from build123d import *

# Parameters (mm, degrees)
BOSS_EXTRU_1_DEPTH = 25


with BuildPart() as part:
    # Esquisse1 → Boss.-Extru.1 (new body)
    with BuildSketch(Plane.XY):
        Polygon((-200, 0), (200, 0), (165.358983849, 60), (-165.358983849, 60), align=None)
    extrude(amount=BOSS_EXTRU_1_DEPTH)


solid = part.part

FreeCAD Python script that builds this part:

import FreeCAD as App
import Part
import Sketcher
Q = App.Units.Quantity


def add_polygon(sketch, points):
    """Adds a closed chain of lines whose ends are joined by coincident constraints."""
    first, n = sketch.GeometryCount, len(points)
    for a, b in zip(points, points[1:] + points[:1]):
        sketch.addGeometry(Part.LineSegment(App.Vector(*a, 0), App.Vector(*b, 0)), False)
    for i in range(n):
        sketch.addConstraint(Sketcher.Constraint("Coincident", first + i, 2, first + (i + 1) % n, 1))

doc = App.newDocument("Part")
params = doc.addObject("Spreadsheet::Sheet", "Params")
for row, (alias, value) in enumerate([
    ("sketch1_width", "400 mm"),
    ("pad1_length", "25 mm"),
], start=1):
    params.set(f"A{row}", alias)
    params.set(f"B{row}", "=" + value)
    params.setAlias(f"B{row}", alias)

body = doc.addObject("PartDesign::Body", "Body")

sketch1 = doc.addObject("Sketcher::SketchObject", "Sketch")
body.addObject(sketch1)
sketch1.AttachmentSupport = (doc.XY_Plane, [""])
sketch1.MapMode = "FlatFace"
add_polygon(sketch1, [(-200, 0), (200, 0), (165, 60), (-165, 60)])
sketch1.addConstraint([
    Sketcher.Constraint("Horizontal", 0),
    Sketcher.Constraint("Horizontal", 2),
    Sketcher.Constraint("Symmetric", 0, 2, 3, 2, -1, 1),
    Sketcher.Constraint("Equal", 1, 3),
    Sketcher.Constraint("DistanceX", 0, 1, 0, 2, 400.0),
    Sketcher.Constraint("Angle", 1, Q("120 deg")),
    Sketcher.Constraint("DistanceY", -1, 1, 1, 2, 60.0),
])
sketch1.setExpression("Constraints[8]", "Params.sketch1_width")
pad1 = doc.addObject("PartDesign::Pad", "Pad")
body.addObject(pad1)
pad1.Profile = sketch1
pad1.setExpression("Length", "Params.pad1_length")

doc.recompute()
